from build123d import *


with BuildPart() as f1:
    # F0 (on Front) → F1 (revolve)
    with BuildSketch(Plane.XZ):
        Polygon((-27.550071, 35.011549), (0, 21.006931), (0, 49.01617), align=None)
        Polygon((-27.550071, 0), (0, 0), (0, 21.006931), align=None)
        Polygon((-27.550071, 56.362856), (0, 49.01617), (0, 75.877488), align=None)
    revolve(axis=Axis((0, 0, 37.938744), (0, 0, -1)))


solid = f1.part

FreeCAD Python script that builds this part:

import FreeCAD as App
import Part
import Sketcher

V = App.Vector
Q = App.Units.Quantity

doc = App.newDocument("Part")
params = doc.addObject("Spreadsheet::Sheet", "Params")
for row, (alias, value) in enumerate([
    ("revolution_angle", "360 deg"),
], start=1):
    params.set(f"A{row}", alias)
    params.set(f"B{row}", "=" + value)
    params.setAlias(f"B{row}", alias)

body = doc.addObject("PartDesign::Body", "Body")
body.AllowCompound = True

# Sketch on XZ plane
sketch1 = body.newObject("Sketcher::SketchObject", "Sketch")
sketch1.AttachmentSupport = (doc.getObject("XZ_Plane"), [""])
sketch1.MapMode = "FlatFace"
sketch1.addGeometry([
    Part.LineSegment(V(-28, 35, 0), V(0, 21, 0)),  # 0
    Part.LineSegment(V(0, 21, 0), V(0, 49, 0)),  # 1
    Part.LineSegment(V(0, 49, 0), V(-28, 35, 0)),  # 2
    Part.LineSegment(V(-28, 0, 0), V(0, 0, 0)),  # 3
    Part.LineSegment(V(0, 0, 0), V(0, 21, 0)),  # 4
    Part.LineSegment(V(0, 21, 0), V(-28, 0, 0)),  # 5
    Part.LineSegment(V(-28, 56, 0), V(0, 49, 0)),  # 6
    Part.LineSegment(V(0, 49, 0), V(0, 76, 0)),  # 7
    Part.LineSegment(V(0, 76, 0), V(-28, 56, 0)),  # 8
], False)
sketch1.addConstraint([
    Sketcher.Constraint("Coincident", 0, 2, 1, 1),
    Sketcher.Constraint("Coincident", 1, 2, 2, 1),
    Sketcher.Constraint("Coincident", 2, 2, 0, 1),
    Sketcher.Constraint("Coincident", 3, 2, 4, 1),
    Sketcher.Constraint("Coincident", 4, 2, 5, 1),
    Sketcher.Constraint("Coincident", 5, 2, 3, 1),
    Sketcher.Constraint("Coincident", 6, 2, 7, 1),
    Sketcher.Constraint("Coincident", 7, 2, 8, 1),
    Sketcher.Constraint("Coincident", 8, 2, 6, 1),
    Sketcher.Constraint("Vertical", 1),
    Sketcher.Constraint("Horizontal", 3),
    Sketcher.Constraint("Vertical", 4),
    Sketcher.Constraint("Vertical", 7),
    Sketcher.Constraint("Coincident", 3, 2, -1, 1),
    Sketcher.Constraint("Coincident", 4, 2, 0, 2),
    Sketcher.Constraint("Coincident", 6, 2, 1, 2),
    Sketcher.Constraint("Vertical", 2, 2, 5, 2),
    Sketcher.Constraint("Vertical", 5, 2, 8, 2),
    Sketcher.Constraint("Equal", 0, 2),
    Sketcher.Constraint("DistanceX", 3, 1, 3, 2, Q("27.550071 mm")),
    Sketcher.Constraint("DistanceY", 1, 1, 1, 2, Q("28.009239 mm")),
    Sketcher.Constraint("DistanceY", 4, 1, 4, 2, Q("21.006931 mm")),
    Sketcher.Constraint("Distance", 8, Q("33.761328 mm")),
    Sketcher.Constraint("DistanceY", 7, 1, 7, 2, Q("26.861318 mm")),
])
revolution = body.newObject("PartDesign::Revolution", "Revolution")
revolution.Profile = sketch1
revolution.ReferenceAxis = (sketch1, ["V_Axis"])
revolution.setExpression("Angle", "Params.revolution_angle")

doc.recompute()
